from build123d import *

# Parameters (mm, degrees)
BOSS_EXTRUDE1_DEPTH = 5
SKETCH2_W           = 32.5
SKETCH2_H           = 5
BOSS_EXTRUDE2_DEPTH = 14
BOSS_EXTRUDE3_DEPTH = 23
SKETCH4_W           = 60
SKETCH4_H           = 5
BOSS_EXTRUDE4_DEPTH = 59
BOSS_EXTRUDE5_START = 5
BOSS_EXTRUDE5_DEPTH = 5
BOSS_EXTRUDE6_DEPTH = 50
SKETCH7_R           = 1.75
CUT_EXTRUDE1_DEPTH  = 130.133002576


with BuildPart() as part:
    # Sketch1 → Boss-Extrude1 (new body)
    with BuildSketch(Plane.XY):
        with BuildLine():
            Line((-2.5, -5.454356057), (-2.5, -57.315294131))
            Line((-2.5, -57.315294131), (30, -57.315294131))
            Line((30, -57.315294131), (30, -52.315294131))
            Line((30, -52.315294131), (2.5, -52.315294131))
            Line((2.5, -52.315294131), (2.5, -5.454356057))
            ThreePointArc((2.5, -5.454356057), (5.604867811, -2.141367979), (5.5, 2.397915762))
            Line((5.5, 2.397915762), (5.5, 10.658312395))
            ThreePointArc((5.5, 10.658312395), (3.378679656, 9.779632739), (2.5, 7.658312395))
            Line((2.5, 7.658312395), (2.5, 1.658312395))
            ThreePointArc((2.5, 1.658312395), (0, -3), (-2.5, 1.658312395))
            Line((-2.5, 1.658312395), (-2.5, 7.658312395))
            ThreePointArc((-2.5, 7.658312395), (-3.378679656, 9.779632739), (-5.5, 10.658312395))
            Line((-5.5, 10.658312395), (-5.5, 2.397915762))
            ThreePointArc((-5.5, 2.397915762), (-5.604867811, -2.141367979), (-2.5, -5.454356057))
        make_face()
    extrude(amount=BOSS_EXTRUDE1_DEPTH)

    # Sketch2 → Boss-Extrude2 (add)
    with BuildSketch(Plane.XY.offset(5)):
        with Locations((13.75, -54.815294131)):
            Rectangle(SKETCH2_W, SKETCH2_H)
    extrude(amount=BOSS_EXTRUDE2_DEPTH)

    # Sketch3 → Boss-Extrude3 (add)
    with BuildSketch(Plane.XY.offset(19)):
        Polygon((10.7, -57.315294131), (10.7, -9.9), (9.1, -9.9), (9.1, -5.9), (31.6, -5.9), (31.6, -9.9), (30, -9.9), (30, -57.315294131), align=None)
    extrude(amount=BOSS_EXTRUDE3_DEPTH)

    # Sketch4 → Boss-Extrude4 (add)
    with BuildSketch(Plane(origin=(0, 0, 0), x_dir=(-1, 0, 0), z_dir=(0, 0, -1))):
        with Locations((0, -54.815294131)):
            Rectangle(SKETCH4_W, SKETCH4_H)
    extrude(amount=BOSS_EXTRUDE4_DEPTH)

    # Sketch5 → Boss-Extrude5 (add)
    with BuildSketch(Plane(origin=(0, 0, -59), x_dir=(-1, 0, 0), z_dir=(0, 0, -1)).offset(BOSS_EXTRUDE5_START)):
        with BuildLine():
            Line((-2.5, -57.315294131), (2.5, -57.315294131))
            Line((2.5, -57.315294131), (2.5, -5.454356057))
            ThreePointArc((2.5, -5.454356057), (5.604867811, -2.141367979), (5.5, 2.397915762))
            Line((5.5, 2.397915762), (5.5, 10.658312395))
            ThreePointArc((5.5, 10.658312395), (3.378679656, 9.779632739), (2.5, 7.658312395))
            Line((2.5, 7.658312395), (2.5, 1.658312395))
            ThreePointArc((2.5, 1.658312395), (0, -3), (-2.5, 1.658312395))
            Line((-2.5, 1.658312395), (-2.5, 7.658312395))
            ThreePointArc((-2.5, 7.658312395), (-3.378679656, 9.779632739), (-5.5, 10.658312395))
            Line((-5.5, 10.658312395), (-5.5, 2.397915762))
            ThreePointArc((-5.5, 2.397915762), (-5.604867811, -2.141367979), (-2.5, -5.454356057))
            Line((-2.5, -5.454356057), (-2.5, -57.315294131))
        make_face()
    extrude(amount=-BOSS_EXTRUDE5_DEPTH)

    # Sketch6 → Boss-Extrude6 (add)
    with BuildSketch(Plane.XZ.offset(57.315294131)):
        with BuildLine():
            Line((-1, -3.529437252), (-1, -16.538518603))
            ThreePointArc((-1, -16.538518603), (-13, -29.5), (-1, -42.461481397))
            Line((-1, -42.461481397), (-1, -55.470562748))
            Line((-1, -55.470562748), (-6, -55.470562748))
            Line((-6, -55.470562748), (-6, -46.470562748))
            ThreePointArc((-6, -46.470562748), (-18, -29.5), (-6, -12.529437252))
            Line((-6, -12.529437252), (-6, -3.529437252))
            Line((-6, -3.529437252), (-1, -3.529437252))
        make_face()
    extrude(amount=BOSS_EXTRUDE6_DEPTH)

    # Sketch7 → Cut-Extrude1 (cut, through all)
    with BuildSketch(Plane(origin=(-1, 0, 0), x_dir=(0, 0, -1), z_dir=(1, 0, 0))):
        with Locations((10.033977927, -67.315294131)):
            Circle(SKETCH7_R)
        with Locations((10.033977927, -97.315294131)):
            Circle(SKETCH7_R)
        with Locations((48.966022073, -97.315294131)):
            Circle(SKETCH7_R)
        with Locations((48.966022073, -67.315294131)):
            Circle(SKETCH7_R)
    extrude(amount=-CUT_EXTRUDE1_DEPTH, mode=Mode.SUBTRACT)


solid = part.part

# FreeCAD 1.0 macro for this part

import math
import FreeCAD as App
import Part
import Sketcher
Q = App.Units.Quantity

doc = App.newDocument("Part")
params = doc.addObject("Spreadsheet::Sheet", "Params")
for row, (alias, value) in enumerate([
    ("sketch1_radius", "6 mm"),
    ("sketch1_radius2", "3 mm"),
    ("sketch1_height", "5 mm"),
    ("sketch1_height2", "6 mm"),
    ("sketch1_width", "32.5 mm"),
    ("pad1_length", "5 mm"),
    ("sketch2_height", "5 mm"),
    ("sketch2_width", "32.5 mm"),
    ("pad2_length", "14 mm"),
    ("sketch3_height", "4 mm"),
    ("sketch3_width", "19.3 mm"),
    ("sketch3_width2", "1.6 mm"),
    ("pad3_length", "23 mm"),
    ("sketch4_width", "60 mm"),
    ("sketch4_height", "5 mm"),
    ("pad4_length", "59 mm"),
    ("sketch5_radius", "6 mm"),
    ("sketch5_radius2", "3 mm"),
    ("sketch5_width", "5 mm"),
    ("sketch5_height", "6 mm"),
    ("pad5_length", "5 mm"),
    ("sketch6_radius", "18 mm"),
    ("sketch6_radius2", "13 mm"),
    ("sketch6_width", "5 mm"),
    ("sketch6_height", "9 mm"),
    ("pad6_length", "50 mm"),
    ("sketch7_diameter", "3.5 mm"),
], start=1):
    params.set(f"A{row}", alias)
    params.set(f"B{row}", "=" + value)
    params.setAlias(f"B{row}", alias)

body = doc.addObject("PartDesign::Body", "Body")

sketch1 = body.newObject("Sketcher::SketchObject", "Sketch")
sketch1.AttachmentSupport = (doc.getObject("XY_Plane"), [""])
sketch1.MapMode = "FlatFace"
sketch1.addGeometry(Part.LineSegment(App.Vector(-2.5, -5.454356, 0), App.Vector(-2.5, -57.315294, 0)), False)
sketch1.addGeometry(Part.LineSegment(App.Vector(-2.5, -57.315294, 0), App.Vector(30, -57.315294, 0)), False)
sketch1.addGeometry(Part.LineSegment(App.Vector(30, -57.315294, 0), App.Vector(30, -52.315294, 0)), False)
sketch1.addGeometry(Part.LineSegment(App.Vector(30, -52.315294, 0), App.Vector(2.5, -52.315294, 0)), False)
sketch1.addGeometry(Part.LineSegment(App.Vector(2.5, -52.315294, 0), App.Vector(2.5, -5.454356, 0)), False)
sketch1.addGeometry(Part.ArcOfCircle(Part.Circle(App.Vector(0, 0, 0), App.Vector(0, 0, 1), 6), math.radians(-65.375682), math.radians(23.556464)), False)
sketch1.addGeometry(Part.LineSegment(App.Vector(5.5, 2.397916, 0), App.Vector(5.5, 10.658312, 0)), False)
sketch1.addGeometry(Part.ArcOfCircle(Part.Circle(App.Vector(5.5, 7.658312, 0), App.Vector(0, 0, 1), 3), math.radians(90), math.radians(180)), False)
sketch1.addGeometry(Part.LineSegment(App.Vector(2.5, 7.658312, 0), App.Vector(2.5, 1.658312, 0)), False)
sketch1.addGeometry(Part.ArcOfCircle(Part.Circle(App.Vector(0, 0, 0), App.Vector(0, 0, 1), 3), math.radians(146.44269), math.radians(393.55731)), False)
sketch1.addGeometry(Part.LineSegment(App.Vector(-2.5, 1.658312, 0), App.Vector(-2.5, 7.658312, 0)), False)
sketch1.addGeometry(Part.ArcOfCircle(Part.Circle(App.Vector(-5.5, 7.658312, 0), App.Vector(0, 0, 1), 3), math.radians(0), math.radians(90)), False)
sketch1.addGeometry(Part.LineSegment(App.Vector(-5.5, 10.658312, 0), App.Vector(-5.5, 2.397916, 0)), False)
sketch1.addGeometry(Part.ArcOfCircle(Part.Circle(App.Vector(0, 0, 0), App.Vector(0, 0, 1), 6), math.radians(156.443536), math.radians(245.375682)), False)
sketch1.addConstraint(Sketcher.Constraint("Coincident", 0, 2, 1, 1))
sketch1.addConstraint(Sketcher.Constraint("Coincident", 1, 2, 2, 1))
sketch1.addConstraint(Sketcher.Constraint("Coincident", 2, 2, 3, 1))
sketch1.addConstraint(Sketcher.Constraint("Coincident", 3, 2, 4, 1))
sketch1.addConstraint(Sketcher.Constraint("Coincident", 4, 2, 5, 1))
sketch1.addConstraint(Sketcher.Constraint("Coincident", 5, 2, 6, 1))
sketch1.addConstraint(Sketcher.Constraint("Coincident", 6, 2, 7, 1))
sketch1.addConstraint(Sketcher.Constraint("Tangent", 7, 2, 8, 1))
sketch1.addConstraint(Sketcher.Constraint("Coincident", 8, 2, 9, 2))
sketch1.addConstraint(Sketcher.Constraint("Coincident", 9, 1, 10, 1))
sketch1.addConstraint(Sketcher.Constraint("Tangent", 10, 2, 11, 1))
sketch1.addConstraint(Sketcher.Constraint("Coincident", 11, 2, 12, 1))
sketch1.addConstraint(Sketcher.Constraint("Coincident", 12, 2, 13, 1))
sketch1.addConstraint(Sketcher.Constraint("Coincident", 13, 2, 0, 1))
sketch1.addConstraint(Sketcher.Constraint("Vertical", 0))
sketch1.addConstraint(Sketcher.Constraint("Horizontal", 1))
sketch1.addConstraint(Sketcher.Constraint("Vertical", 2))
sketch1.addConstraint(Sketcher.Constraint("Horizontal", 3))
sketch1.addConstraint(Sketcher.Constraint("Vertical", 4))
sketch1.addConstraint(Sketcher.Constraint("Vertical", 6))
sketch1.addConstraint(Sketcher.Constraint("Vertical", 8))
sketch1.addConstraint(Sketcher.Constraint("Vertical", 10))
sketch1.addConstraint(Sketcher.Constraint("Vertical", 12))
sketch1.addConstraint(Sketcher.Constraint("Coincident", 5, 3, -1, 1))
sketch1.addConstraint(Sketcher.Constraint("Coincident", 9, 3, -1, 1))
sketch1.addConstraint(Sketcher.Constraint("Coincident", 13, 3, -1, 1))
sketch1.addConstraint(Sketcher.Constraint("Equal", 7, 9))
sketch1.addConstraint(Sketcher.Constraint("Equal", 9, 11))
sketch1.addConstraint(Sketcher.Constraint("Equal", 5, 13))
sketch1.addConstraint(Sketcher.Constraint("Symmetric", 7, 3, 11, 3, -2))
sketch1.addConstraint(Sketcher.Constraint("Horizontal", 5, 2, 12, 2))
sketch1.addConstraint(Sketcher.Constraint("Horizontal", 4, 2, 13, 2))
sketch1.addConstraint(Sketcher.Constraint("Vertical", 7, 3, 5, 2))
sketch1.addConstraint(Sketcher.Constraint("Vertical", 4, 2, 7, 2))
sketch1.addConstraint(Sketcher.Constraint("Radius", 5, Q("6 mm")))
sketch1.addConstraint(Sketcher.Constraint("Radius", 7, Q("3 mm")))
sketch1.addConstraint(Sketcher.Constraint("DistanceY", 2, 1, 2, 2, Q("5 mm")))
sketch1.addConstraint(Sketcher.Constraint("DistanceY", 8, 2, 8, 1, Q("6 mm")))
sketch1.addConstraint(Sketcher.Constraint("DistanceX", 1, 1, 1, 2, Q("32.5 mm")))
sketch1.addConstraint(Sketcher.Constraint("DistanceX", 3, 2, 3, 1, Q("27.5 mm")))
sketch1.addConstraint(Sketcher.Constraint("DistanceY", 0, 2, 0, 1, Q("51.860938 mm")))
sketch1.setExpression("Constraints[34]", "Params.sketch1_radius")
sketch1.setExpression("Constraints[35]", "Params.sketch1_radius2")
sketch1.setExpression("Constraints[36]", "Params.sketch1_height")
sketch1.setExpression("Constraints[37]", "Params.sketch1_height2")
sketch1.setExpression("Constraints[38]", "Params.sketch1_width")
pad1 = body.newObject("PartDesign::Pad", "Pad")
pad1.Profile = sketch1
pad1.setExpression("Length", "Params.pad1_length")

sketch2 = body.newObject("Sketcher::SketchObject", "Sketch001")
sketch2.AttachmentSupport = (doc.getObject("XY_Plane"), [""])
sketch2.MapMode = "FlatFace"
sketch2.AttachmentOffset = App.Placement(App.Vector(0, 0, 5), App.Rotation())
sketch2.addGeometry(Part.LineSegment(App.Vector(-2.5, -52.315294, 0), App.Vector(-2.5, -57.315294, 0)), False)
sketch2.addGeometry(Part.LineSegment(App.Vector(-2.5, -57.315294, 0), App.Vector(30, -57.315294, 0)), False)
sketch2.addGeometry(Part.LineSegment(App.Vector(30, -57.315294, 0), App.Vector(30, -52.315294, 0)), False)
sketch2.addGeometry(Part.LineSegment(App.Vector(30, -52.315294, 0), App.Vector(-2.5, -52.315294, 0)), False)
sketch2.addConstraint(Sketcher.Constraint("Coincident", 0, 2, 1, 1))
sketch2.addConstraint(Sketcher.Constraint("Coincident", 1, 2, 2, 1))
sketch2.addConstraint(Sketcher.Constraint("Coincident", 2, 2, 3, 1))
sketch2.addConstraint(Sketcher.Constraint("Coincident", 3, 2, 0, 1))
sketch2.addConstraint(Sketcher.Constraint("Vertical", 0))
sketch2.addConstraint(Sketcher.Constraint("Horizontal", 1))
sketch2.addConstraint(Sketcher.Constraint("Vertical", 2))
sketch2.addConstraint(Sketcher.Constraint("Horizontal", 3))
sketch2.addConstraint(Sketcher.Constraint("DistanceY", 0, 2, 0, 1, Q("5 mm")))
sketch2.addConstraint(Sketcher.Constraint("DistanceX", 1, 1, 1, 2, Q("32.5 mm")))
sketch2.addConstraint(Sketcher.Constraint("DistanceX", -1, 1, 1, 2, Q("30 mm")))
sketch2.addConstraint(Sketcher.Constraint("DistanceY", 0, 2, -1, 1, Q("57.315294 mm")))
sketch2.setExpression("Constraints[8]", "Params.sketch2_height")
sketch2.setExpression("Constraints[9]", "Params.sketch2_width")
pad2 = body.newObject("PartDesign::Pad", "Pad001")
pad2.Profile = sketch2
pad2.setExpression("Length", "Params.pad2_length")

sketch3 = body.newObject("Sketcher::SketchObject", "Sketch002")
sketch3.AttachmentSupport = (doc.getObject("XY_Plane"), [""])
sketch3.MapMode = "FlatFace"
sketch3.AttachmentOffset = App.Placement(App.Vector(0, 0, 19), App.Rotation())
sketch3.addGeometry(Part.LineSegment(App.Vector(10.7, -9.9, 0), App.Vector(10.7, -57.315294, 0)), False)
sketch3.addGeometry(Part.LineSegment(App.Vector(10.7, -57.315294, 0), App.Vector(30, -57.315294, 0)), False)
sketch3.addGeometry(Part.LineSegment(App.Vector(30, -57.315294, 0), App.Vector(30, -9.9, 0)), False)
sketch3.addGeometry(Part.LineSegment(App.Vector(30, -9.9, 0), App.Vector(31.6, -9.9, 0)), False)
sketch3.addGeometry(Part.LineSegment(App.Vector(31.6, -9.9, 0), App.Vector(31.6, -5.9, 0)), False)
sketch3.addGeometry(Part.LineSegment(App.Vector(31.6, -5.9, 0), App.Vector(9.1, -5.9, 0)), False)
sketch3.addGeometry(Part.LineSegment(App.Vector(9.1, -5.9, 0), App.Vector(9.1, -9.9, 0)), False)
sketch3.addGeometry(Part.LineSegment(App.Vector(9.1, -9.9, 0), App.Vector(10.7, -9.9, 0)), False)
sketch3.addConstraint(Sketcher.Constraint("Coincident", 0, 2, 1, 1))
sketch3.addConstraint(Sketcher.Constraint("Coincident", 1, 2, 2, 1))
sketch3.addConstraint(Sketcher.Constraint("Coincident", 2, 2, 3, 1))
sketch3.addConstraint(Sketcher.Constraint("Coincident", 3, 2, 4, 1))
sketch3.addConstraint(Sketcher.Constraint("Coincident", 4, 2, 5, 1))
sketch3.addConstraint(Sketcher.Constraint("Coincident", 5, 2, 6, 1))
sketch3.addConstraint(Sketcher.Constraint("Coincident", 6, 2, 7, 1))
sketch3.addConstraint(Sketcher.Constraint("Coincident", 7, 2, 0, 1))
sketch3.addConstraint(Sketcher.Constraint("Vertical", 0))
sketch3.addConstraint(Sketcher.Constraint("Horizontal", 1))
sketch3.addConstraint(Sketcher.Constraint("Vertical", 2))
sketch3.addConstraint(Sketcher.Constraint("Horizontal", 3))
sketch3.addConstraint(Sketcher.Constraint("Vertical", 4))
sketch3.addConstraint(Sketcher.Constraint("Horizontal", 5))
sketch3.addConstraint(Sketcher.Constraint("Vertical", 6))
sketch3.addConstraint(Sketcher.Constraint("Horizontal", 7))
sketch3.addConstraint(Sketcher.Constraint("Horizontal", 3, 2, 6, 2))
sketch3.addConstraint(Sketcher.Constraint("Equal", 3, 7))
sketch3.addConstraint(Sketcher.Constraint("DistanceY", 4, 1, 4, 2, Q("4 mm")))
sketch3.addConstraint(Sketcher.Constraint("DistanceX", 1, 1, 1, 2, Q("19.3 mm")))
sketch3.addConstraint(Sketcher.Constraint("DistanceX", 3, 1, 3, 2, Q("1.6 mm")))
sketch3.addConstraint(Sketcher.Constraint("DistanceX", -1, 1, 1, 2, Q("30 mm")))
sketch3.addConstraint(Sketcher.Constraint("DistanceY", 2, 2, -1, 1, Q("9.9 mm")))
sketch3.addConstraint(Sketcher.Constraint("DistanceY", 0, 2, 0, 1, Q("47.415294 mm")))
sketch3.setExpression("Constraints[18]", "Params.sketch3_height")
sketch3.setExpression("Constraints[19]", "Params.sketch3_width")
sketch3.setExpression("Constraints[20]", "Params.sketch3_width2")
pad3 = body.newObject("PartDesign::Pad", "Pad002")
pad3.Profile = sketch3
pad3.setExpression("Length", "Params.pad3_length")

sketch4 = body.newObject("Sketcher::SketchObject", "Sketch003")
sketch4.AttachmentSupport = (doc.getObject("XY_Plane"), [""])
sketch4.MapMode = "FlatFace"
sketch4.addGeometry(Part.LineSegment(App.Vector(30, -52.315294, 0), App.Vector(30, -57.315294, 0)), False)
sketch4.addGeometry(Part.LineSegment(App.Vector(30, -57.315294, 0), App.Vector(-30, -57.315294, 0)), False)
sketch4.addGeometry(Part.LineSegment(App.Vector(-30, -57.315294, 0), App.Vector(-30, -52.315294, 0)), False)
sketch4.addGeometry(Part.LineSegment(App.Vector(-30, -52.315294, 0), App.Vector(30, -52.315294, 0)), False)
sketch4.addConstraint(Sketcher.Constraint("Coincident", 0, 2, 1, 1))
sketch4.addConstraint(Sketcher.Constraint("Coincident", 1, 2, 2, 1))
sketch4.addConstraint(Sketcher.Constraint("Coincident", 2, 2, 3, 1))
sketch4.addConstraint(Sketcher.Constraint("Coincident", 3, 2, 0, 1))
sketch4.addConstraint(Sketcher.Constraint("Vertical", 0))
sketch4.addConstraint(Sketcher.Constraint("Horizontal", 1))
sketch4.addConstraint(Sketcher.Constraint("Vertical", 2))
sketch4.addConstraint(Sketcher.Constraint("Horizontal", 3))
sketch4.addConstraint(Sketcher.Constraint("DistanceX", 1, 2, 1, 1, Q("60 mm")))
sketch4.addConstraint(Sketcher.Constraint("DistanceY", 0, 2, 0, 1, Q("5 mm")))
sketch4.addConstraint(Sketcher.Constraint("DistanceX", -1, 1, 0, 2, Q("30 mm")))
sketch4.addConstraint(Sketcher.Constraint("DistanceY", 0, 2, -1, 1, Q("57.315294 mm")))
sketch4.setExpression("Constraints[8]", "Params.sketch4_width")
sketch4.setExpression("Constraints[9]", "Params.sketch4_height")
pad4 = body.newObject("PartDesign::Pad", "Pad003")
pad4.Profile = sketch4
pad4.setExpression("Length", "Params.pad4_length")
pad4.Reversed = True

sketch5 = body.newObject("Sketcher::SketchObject", "Sketch004")
sketch5.AttachmentSupport = (doc.getObject("XY_Plane"), [""])
sketch5.MapMode = "FlatFace"
sketch5.AttachmentOffset = App.Placement(App.Vector(0, 0, -64), App.Rotation())
sketch5.addGeometry(Part.LineSegment(App.Vector(2.5, -57.315294, 0), App.Vector(-2.5, -57.315294, 0)), False)
sketch5.addGeometry(Part.LineSegment(App.Vector(-2.5, -57.315294, 0), App.Vector(-2.5, -5.454356, 0)), False)
sketch5.addGeometry(Part.ArcOfCircle(Part.Circle(App.Vector(0, 0, 0), App.Vector(0, 0, 1), 6), math.radians(156.443536), math.radians(245.375682)), False)
sketch5.addGeometry(Part.LineSegment(App.Vector(-5.5, 2.397916, 0), App.Vector(-5.5, 10.658312, 0)), False)
sketch5.addGeometry(Part.ArcOfCircle(Part.Circle(App.Vector(-5.5, 7.658312, 0), App.Vector(0, 0, 1), 3), math.radians(0), math.radians(90)), False)
sketch5.addGeometry(Part.LineSegment(App.Vector(-2.5, 7.658312, 0), App.Vector(-2.5, 1.658312, 0)), False)
sketch5.addGeometry(Part.ArcOfCircle(Part.Circle(App.Vector(0, 0, 0), App.Vector(0, 0, 1), 3), math.radians(146.44269), math.radians(393.55731)), False)
sketch5.addGeometry(Part.LineSegment(App.Vector(2.5, 1.658312, 0), App.Vector(2.5, 7.658312, 0)), False)
sketch5.addGeometry(Part.ArcOfCircle(Part.Circle(App.Vector(5.5, 7.658312, 0), App.Vector(0, 0, 1), 3), math.radians(90), math.radians(180)), False)
sketch5.addGeometry(Part.LineSegment(App.Vector(5.5, 10.658312, 0), App.Vector(5.5, 2.397916, 0)), False)
sketch5.addGeometry(Part.ArcOfCircle(Part.Circle(App.Vector(0, 0, 0), App.Vector(0, 0, 1), 6), math.radians(-65.375682), math.radians(23.556464)), False)
sketch5.addGeometry(Part.LineSegment(App.Vector(2.5, -5.454356, 0), App.Vector(2.5, -57.315294, 0)), False)
sketch5.addConstraint(Sketcher.Constraint("Coincident", 0, 2, 1, 1))
sketch5.addConstraint(Sketcher.Constraint("Coincident", 1, 2, 2, 2))
sketch5.addConstraint(Sketcher.Constraint("Coincident", 2, 1, 3, 1))
sketch5.addConstraint(Sketcher.Constraint("Coincident", 3, 2, 4, 2))
sketch5.addConstraint(Sketcher.Constraint("Tangent", 4, 1, 5, 1))
sketch5.addConstraint(Sketcher.Constraint("Coincident", 5, 2, 6, 1))
sketch5.addConstraint(Sketcher.Constraint("Coincident", 6, 2, 7, 1))
sketch5.addConstraint(Sketcher.Constraint("Tangent", 7, 2, 8, 2))
sketch5.addConstraint(Sketcher.Constraint("Coincident", 8, 1, 9, 1))
sketch5.addConstraint(Sketcher.Constraint("Coincident", 9, 2, 10, 2))
sketch5.addConstraint(Sketcher.Constraint("Coincident", 10, 1, 11, 1))
sketch5.addConstraint(Sketcher.Constraint("Coincident", 11, 2, 0, 1))
sketch5.addConstraint(Sketcher.Constraint("Horizontal", 0))
sketch5.addConstraint(Sketcher.Constraint("Vertical", 1))
sketch5.addConstraint(Sketcher.Constraint("Vertical", 3))
sketch5.addConstraint(Sketcher.Constraint("Vertical", 5))
sketch5.addConstraint(Sketcher.Constraint("Vertical", 7))
sketch5.addConstraint(Sketcher.Constraint("Vertical", 9))
sketch5.addConstraint(Sketcher.Constraint("Vertical", 11))
sketch5.addConstraint(Sketcher.Constraint("Coincident", 2, 3, -1, 1))
sketch5.addConstraint(Sketcher.Constraint("Coincident", 6, 3, -1, 1))
sketch5.addConstraint(Sketcher.Constraint("Coincident", 10, 3, -1, 1))
sketch5.addConstraint(Sketcher.Constraint("Equal", 4, 6))
sketch5.addConstraint(Sketcher.Constraint("Equal", 6, 8))
sketch5.addConstraint(Sketcher.Constraint("Equal", 2, 10))
sketch5.addConstraint(Sketcher.Constraint("Symmetric", 4, 3, 8, 3, -2))
sketch5.addConstraint(Sketcher.Constraint("Horizontal", 2, 1, 9, 2))
sketch5.addConstraint(Sketcher.Constraint("Horizontal", 1, 2, 10, 1))
sketch5.addConstraint(Sketcher.Constraint("Vertical", 4, 3, 2, 1))
sketch5.addConstraint(Sketcher.Constraint("Vertical", 1, 2, 4, 1))
sketch5.addConstraint(Sketcher.Constraint("Radius", 2, Q("6 mm")))
sketch5.addConstraint(Sketcher.Constraint("Radius", 4, Q("3 mm")))
sketch5.addConstraint(Sketcher.Constraint("DistanceX", 0, 2, 0, 1, Q("5 mm")))
sketch5.addConstraint(Sketcher.Constraint("DistanceY", 5, 2, 5, 1, Q("6 mm")))
sketch5.addConstraint(Sketcher.Constraint("DistanceY", 1, 1, 1, 2, Q("51.860938 mm")))
sketch5.setExpression("Constraints[30]", "Params.sketch5_radius")
sketch5.setExpression("Constraints[31]", "Params.sketch5_radius2")
sketch5.setExpression("Constraints[32]", "Params.sketch5_width")
sketch5.setExpression("Constraints[33]", "Params.sketch5_height")
pad5 = body.newObject("PartDesign::Pad", "Pad004")
pad5.Profile = sketch5
pad5.setExpression("Length", "Params.pad5_length")

sketch6 = body.newObject("Sketcher::SketchObject", "Sketch005")
sketch6.AttachmentSupport = (doc.getObject("XZ_Plane"), [""])
sketch6.MapMode = "FlatFace"
sketch6.AttachmentOffset = App.Placement(App.Vector(0, 0, 57.315294), App.Rotation())
sketch6.addGeometry(Part.LineSegment(App.Vector(-1, -16.538519, 0), App.Vector(-1, -3.529437, 0)), False)
sketch6.addGeometry(Part.LineSegment(App.Vector(-1, -3.529437, 0), App.Vector(-6, -3.529437, 0)), False)
sketch6.addGeometry(Part.LineSegment(App.Vector(-6, -3.529437, 0), App.Vector(-6, -12.529437, 0)), False)
sketch6.addGeometry(Part.ArcOfCircle(Part.Circle(App.Vector(0, -29.5, 0), App.Vector(0, 0, 1), 18), math.radians(109.471221), math.radians(250.528779)), False)
sketch6.addGeometry(Part.LineSegment(App.Vector(-6, -46.470563, 0), App.Vector(-6, -55.470563, 0)), False)
sketch6.addGeometry(Part.LineSegment(App.Vector(-6, -55.470563, 0), App.Vector(-1, -55.470563, 0)), False)
sketch6.addGeometry(Part.LineSegment(App.Vector(-1, -55.470563, 0), App.Vector(-1, -42.461481, 0)), False)
sketch6.addGeometry(Part.ArcOfCircle(Part.Circle(App.Vector(0, -29.5, 0), App.Vector(0, 0, 1), 13), math.radians(94.411726), math.radians(265.588274)), False)
sketch6.addConstraint(Sketcher.Constraint("Coincident", 0, 2, 1, 1))
sketch6.addConstraint(Sketcher.Constraint("Coincident", 1, 2, 2, 1))
sketch6.addConstraint(Sketcher.Constraint("Coincident", 2, 2, 3, 1))
sketch6.addConstraint(Sketcher.Constraint("Coincident", 3, 2, 4, 1))
sketch6.addConstraint(Sketcher.Constraint("Coincident", 4, 2, 5, 1))
sketch6.addConstraint(Sketcher.Constraint("Coincident", 5, 2, 6, 1))
sketch6.addConstraint(Sketcher.Constraint("Coincident", 6, 2, 7, 2))
sketch6.addConstraint(Sketcher.Constraint("Coincident", 7, 1, 0, 1))
sketch6.addConstraint(Sketcher.Constraint("Vertical", 0))
sketch6.addConstraint(Sketcher.Constraint("Horizontal", 1))
sketch6.addConstraint(Sketcher.Constraint("Vertical", 2))
sketch6.addConstraint(Sketcher.Constraint("Vertical", 4))
sketch6.addConstraint(Sketcher.Constraint("Horizontal", 5))
sketch6.addConstraint(Sketcher.Constraint("Vertical", 6))
sketch6.addConstraint(Sketcher.Constraint("Coincident", 7, 3, 3, 3))
sketch6.addConstraint(Sketcher.Constraint("PointOnObject", 3, 3, -2))
sketch6.addConstraint(Sketcher.Constraint("Vertical", 2, 2, 3, 2))
sketch6.addConstraint(Sketcher.Constraint("Vertical", 0, 2, 5, 2))
sketch6.addConstraint(Sketcher.Constraint("Equal", 2, 4))
sketch6.addConstraint(Sketcher.Constraint("Radius", 3, Q("18 mm")))
sketch6.addConstraint(Sketcher.Constraint("Radius", 7, Q("13 mm")))
sketch6.addConstraint(Sketcher.Constraint("DistanceX", 1, 2, 1, 1, Q("5 mm")))
sketch6.addConstraint(Sketcher.Constraint("DistanceY", 2, 2, 2, 1, Q("9 mm")))
sketch6.addConstraint(Sketcher.Constraint("DistanceX", 0, 2, -1, 1, Q("1 mm")))
sketch6.addConstraint(Sketcher.Constraint("DistanceY", 3, 3, -1, 1, Q("29.5 mm")))
sketch6.setExpression("Constraints[19]", "Params.sketch6_radius")
sketch6.setExpression("Constraints[20]", "Params.sketch6_radius2")
sketch6.setExpression("Constraints[21]", "Params.sketch6_width")
sketch6.setExpression("Constraints[22]", "Params.sketch6_height")
pad6 = body.newObject("PartDesign::Pad", "Pad005")
pad6.Profile = sketch6
pad6.setExpression("Length", "Params.pad6_length")

sketch7 = body.newObject("Sketcher::SketchObject", "Sketch006")
sketch7.AttachmentSupport = (doc.getObject("YZ_Plane"), [""])
sketch7.MapMode = "FlatFace"
sketch7.AttachmentOffset = App.Placement(App.Vector(0, 0, -1), App.Rotation())
sketch7.addGeometry(Part.Circle(App.Vector(-67.315294, -10.033978, 0), App.Vector(0, 0, 1), 1.75), False)
sketch7.addGeometry(Part.Circle(App.Vector(-97.315294, -10.033978, 0), App.Vector(0, 0, 1), 1.75), False)
sketch7.addGeometry(Part.Circle(App.Vector(-97.315294, -48.966022, 0), App.Vector(0, 0, 1), 1.75), False)
sketch7.addGeometry(Part.Circle(App.Vector(-67.315294, -48.966022, 0), App.Vector(0, 0, 1), 1.75), False)
sketch7.addConstraint(Sketcher.Constraint("Equal", 0, 1))
sketch7.addConstraint(Sketcher.Constraint("Equal", 1, 2))
sketch7.addConstraint(Sketcher.Constraint("Equal", 2, 3))
sketch7.addConstraint(Sketcher.Constraint("Horizontal", 0, 3, 1, 3))
sketch7.addConstraint(Sketcher.Constraint("Horizontal", 2, 3, 3, 3))
sketch7.addConstraint(Sketcher.Constraint("Vertical", 1, 3, 2, 3))
sketch7.addConstraint(Sketcher.Constraint("Vertical", 0, 3, 3, 3))
sketch7.addConstraint(Sketcher.Constraint("Diameter", 0, Q("3.5 mm")))
sketch7.addConstraint(Sketcher.Constraint("DistanceX", 1, 3, 0, 3, Q("30 mm")))
sketch7.addConstraint(Sketcher.Constraint("DistanceX", 0, 3, -1, 1, Q("67.315294 mm")))
sketch7.addConstraint(Sketcher.Constraint("DistanceY", 0, 3, -1, 1, Q("10.033978 mm")))
sketch7.addConstraint(Sketcher.Constraint("DistanceY", 2, 3, -1, 1, Q("48.966022 mm")))
sketch7.setExpression("Constraints[7]", "Params.sketch7_diameter")
pocket1 = body.newObject("PartDesign::Pocket", "Pocket")
pocket1.Profile = sketch7
pocket1.Type = "ThroughAll"

doc.recompute()
